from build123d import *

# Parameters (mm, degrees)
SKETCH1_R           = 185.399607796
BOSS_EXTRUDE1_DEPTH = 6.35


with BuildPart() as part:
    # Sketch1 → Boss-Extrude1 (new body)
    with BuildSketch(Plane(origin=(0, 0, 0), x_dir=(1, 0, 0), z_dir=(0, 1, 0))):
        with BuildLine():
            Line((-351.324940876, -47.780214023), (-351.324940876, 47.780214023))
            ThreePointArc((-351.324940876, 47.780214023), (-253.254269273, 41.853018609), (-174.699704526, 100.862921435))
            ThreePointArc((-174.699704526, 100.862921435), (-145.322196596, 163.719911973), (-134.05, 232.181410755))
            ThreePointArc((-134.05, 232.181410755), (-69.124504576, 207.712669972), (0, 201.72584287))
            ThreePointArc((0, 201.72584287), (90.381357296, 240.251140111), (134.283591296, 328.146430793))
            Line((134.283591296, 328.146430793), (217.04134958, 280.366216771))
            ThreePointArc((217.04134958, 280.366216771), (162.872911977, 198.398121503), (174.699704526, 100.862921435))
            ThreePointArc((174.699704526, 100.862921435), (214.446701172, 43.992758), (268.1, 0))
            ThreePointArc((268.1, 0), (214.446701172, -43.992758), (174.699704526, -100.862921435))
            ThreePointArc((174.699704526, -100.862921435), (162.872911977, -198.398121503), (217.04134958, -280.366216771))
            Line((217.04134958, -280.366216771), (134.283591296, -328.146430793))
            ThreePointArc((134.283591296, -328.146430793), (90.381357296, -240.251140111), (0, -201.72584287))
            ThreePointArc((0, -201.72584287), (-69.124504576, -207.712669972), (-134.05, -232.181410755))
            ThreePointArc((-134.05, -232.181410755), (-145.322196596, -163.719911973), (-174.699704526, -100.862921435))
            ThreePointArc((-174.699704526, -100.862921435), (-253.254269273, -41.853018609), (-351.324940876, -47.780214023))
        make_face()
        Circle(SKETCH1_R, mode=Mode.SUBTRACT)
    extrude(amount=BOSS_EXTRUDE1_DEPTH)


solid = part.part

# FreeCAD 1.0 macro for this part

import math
import FreeCAD as App
import Part
import Sketcher
Q = App.Units.Quantity

doc = App.newDocument("Part")
body = doc.addObject("PartDesign::Body", "Body")

# Sketch on XZ plane
sketch1 = body.newObject("Sketcher::SketchObject", "Sketch")
sketch1.AttachmentSupport = (doc.getObject("XZ_Plane"), [""])
sketch1.MapMode = "FlatFace"
sketch1.addGeometry(Part.LineSegment(App.Vector(-351, -48, 0), App.Vector(-351, 48, 0)), False)
sketch1.addGeometry(Part.ArcOfCircle(Part.Circle(App.Vector(-294, 178, 0), App.Vector(0, 0, 1), 142), math.radians(-114), math.radians(-33)), False)
sketch1.addGeometry(Part.ArcOfCircle(Part.Circle(App.Vector(-388, 239, 0), App.Vector(0, 0, 1), 254), math.radians(-33), math.radians(-1)), False)
sketch1.addGeometry(Part.ArcOfCircle(Part.Circle(App.Vector(-13, 455, 0), App.Vector(0, 0, 1), 254), math.radians(-119), math.radians(-87)), False)
sketch1.addGeometry(Part.ArcOfCircle(Part.Circle(App.Vector(-7, 344, 0), App.Vector(0, 0, 1), 142), math.radians(-87), math.radians(-6)), False)
sketch1.addGeometry(Part.LineSegment(App.Vector(134, 328, 0), App.Vector(217, 280, 0)), False)
sketch1.addGeometry(Part.ArcOfCircle(Part.Circle(App.Vector(301, 166, 0), App.Vector(0, 0, 1), 142), math.radians(126), math.radians(207)), False)
sketch1.addGeometry(Part.ArcOfCircle(Part.Circle(App.Vector(401, 217, 0), App.Vector(0, 0, 1), 254), math.radians(-153), math.radians(-121)), False)
sketch1.addGeometry(Part.ArcOfCircle(Part.Circle(App.Vector(401, -217, 0), App.Vector(0, 0, 1), 254), math.radians(121), math.radians(153)), False)
sketch1.addGeometry(Part.ArcOfCircle(Part.Circle(App.Vector(301, -166, 0), App.Vector(0, 0, 1), 142), math.radians(153), math.radians(234)), False)
sketch1.addGeometry(Part.LineSegment(App.Vector(217, -280, 0), App.Vector(134, -328, 0)), False)
sketch1.addGeometry(Part.ArcOfCircle(Part.Circle(App.Vector(-7, -344, 0), App.Vector(0, 0, 1), 142), math.radians(6), math.radians(87)), False)
sketch1.addGeometry(Part.ArcOfCircle(Part.Circle(App.Vector(-13, -455, 0), App.Vector(0, 0, 1), 254), math.radians(87), math.radians(119)), False)
sketch1.addGeometry(Part.ArcOfCircle(Part.Circle(App.Vector(-388, -239, 0), App.Vector(0, 0, 1), 254), math.radians(1), math.radians(33)), False)
sketch1.addGeometry(Part.ArcOfCircle(Part.Circle(App.Vector(-294, -178, 0), App.Vector(0, 0, 1), 142), math.radians(33), math.radians(114)), False)
sketch1.addGeometry(Part.Circle(App.Vector(0, 0, 0), App.Vector(0, 0, 1), 185), False)
sketch1.addConstraint(Sketcher.Constraint("Coincident", 0, 2, 1, 1))
sketch1.addConstraint(Sketcher.Constraint("Tangent", 1, 2, 2, 1))
sketch1.addConstraint(Sketcher.Constraint("Coincident", 2, 2, 3, 1))
sketch1.addConstraint(Sketcher.Constraint("Tangent", 3, 2, 4, 1))
sketch1.addConstraint(Sketcher.Constraint("Coincident", 4, 2, 5, 1))
sketch1.addConstraint(Sketcher.Constraint("Coincident", 5, 2, 6, 1))
sketch1.addConstraint(Sketcher.Constraint("Tangent", 6, 2, 7, 1))
sketch1.addConstraint(Sketcher.Constraint("Coincident", 7, 2, 8, 1))
sketch1.addConstraint(Sketcher.Constraint("Tangent", 8, 2, 9, 1))
sketch1.addConstraint(Sketcher.Constraint("Coincident", 9, 2, 10, 1))
sketch1.addConstraint(Sketcher.Constraint("Coincident", 10, 2, 11, 1))
sketch1.addConstraint(Sketcher.Constraint("Tangent", 11, 2, 12, 1))
sketch1.addConstraint(Sketcher.Constraint("Coincident", 12, 2, 13, 1))
sketch1.addConstraint(Sketcher.Constraint("Tangent", 13, 2, 14, 1))
sketch1.addConstraint(Sketcher.Constraint("Coincident", 14, 2, 0, 1))
sketch1.addConstraint(Sketcher.Constraint("Vertical", 0))
sketch1.addConstraint(Sketcher.Constraint("Coincident", 15, 3, -1, 1))
sketch1.addConstraint(Sketcher.Constraint("Equal", 2, 3))
sketch1.addConstraint(Sketcher.Constraint("Equal", 1, 4))
sketch1.addConstraint(Sketcher.Constraint("Equal", 4, 6))
sketch1.addConstraint(Sketcher.Constraint("Equal", 3, 7))
sketch1.addConstraint(Sketcher.Constraint("Equal", 7, 8))
sketch1.addConstraint(Sketcher.Constraint("Equal", 6, 9))
sketch1.addConstraint(Sketcher.Constraint("Equal", 9, 11))
sketch1.addConstraint(Sketcher.Constraint("Equal", 8, 12))
sketch1.addConstraint(Sketcher.Constraint("Equal", 12, 13))
sketch1.addConstraint(Sketcher.Constraint("Equal", 11, 14))
sketch1.addConstraint(Sketcher.Constraint("Symmetric", 1, 2, 8, 2, -1, 1))
sketch1.addConstraint(Sketcher.Constraint("Symmetric", 3, 2, 11, 2, -1, 1))
sketch1.addConstraint(Sketcher.Constraint("Symmetric", 6, 2, 13, 2, -1, 1))
sketch1.addConstraint(Sketcher.Constraint("Symmetric", 1, 2, 6, 2, -2))
sketch1.addConstraint(Sketcher.Constraint("Symmetric", 4, 3, 11, 3, -1))
sketch1.addConstraint(Sketcher.Constraint("Symmetric", 5, 2, 9, 2, -1))
sketch1.addConstraint(Sketcher.Constraint("Vertical", 2, 3, 13, 3))
sketch1.addConstraint(Sketcher.Constraint("Vertical", 4, 2, 10, 2))
sketch1.addConstraint(Sketcher.Constraint("Radius", 2, Q("10 in")))
sketch1.addConstraint(Sketcher.Constraint("Angle", 5, Q("-30 deg")))
sketch1.addConstraint(Sketcher.Constraint("Diameter", 15, 370.799216))
sketch1.addConstraint(Sketcher.Constraint("Radius", 1, 142.361062))
sketch1.addConstraint(Sketcher.Constraint("DistanceY", 0, 1, 0, 2, 95.560428))
sketch1.addConstraint(Sketcher.Constraint("DistanceX", 2, 2, -1, 1, 134.05))
sketch1.addConstraint(Sketcher.Constraint("DistanceX", -1, 1, 7, 2, 268.1))
sketch1.addConstraint(Sketcher.Constraint("DistanceY", 8, 3, 3, 3, 671.971598))
sketch1.addConstraint(Sketcher.Constraint("DistanceY", 12, 3, 1, 3, 633.590502))
sketch1.addConstraint(Sketcher.Constraint("DistanceY", 3, 2, 3, 3, 253.674701))
sketch1.addConstraint(Sketcher.Constraint("Distance", 5, 95.560428))
sketch1.addConstraint(Sketcher.Constraint("DistanceY", -1, 1, 2, 3, 238.82949))
pad1 = body.newObject("PartDesign::Pad", "Pad")
pad1.Profile = sketch1
pad1.Length = Q("0.25 in")
pad1.Reversed = True

doc.recompute()
